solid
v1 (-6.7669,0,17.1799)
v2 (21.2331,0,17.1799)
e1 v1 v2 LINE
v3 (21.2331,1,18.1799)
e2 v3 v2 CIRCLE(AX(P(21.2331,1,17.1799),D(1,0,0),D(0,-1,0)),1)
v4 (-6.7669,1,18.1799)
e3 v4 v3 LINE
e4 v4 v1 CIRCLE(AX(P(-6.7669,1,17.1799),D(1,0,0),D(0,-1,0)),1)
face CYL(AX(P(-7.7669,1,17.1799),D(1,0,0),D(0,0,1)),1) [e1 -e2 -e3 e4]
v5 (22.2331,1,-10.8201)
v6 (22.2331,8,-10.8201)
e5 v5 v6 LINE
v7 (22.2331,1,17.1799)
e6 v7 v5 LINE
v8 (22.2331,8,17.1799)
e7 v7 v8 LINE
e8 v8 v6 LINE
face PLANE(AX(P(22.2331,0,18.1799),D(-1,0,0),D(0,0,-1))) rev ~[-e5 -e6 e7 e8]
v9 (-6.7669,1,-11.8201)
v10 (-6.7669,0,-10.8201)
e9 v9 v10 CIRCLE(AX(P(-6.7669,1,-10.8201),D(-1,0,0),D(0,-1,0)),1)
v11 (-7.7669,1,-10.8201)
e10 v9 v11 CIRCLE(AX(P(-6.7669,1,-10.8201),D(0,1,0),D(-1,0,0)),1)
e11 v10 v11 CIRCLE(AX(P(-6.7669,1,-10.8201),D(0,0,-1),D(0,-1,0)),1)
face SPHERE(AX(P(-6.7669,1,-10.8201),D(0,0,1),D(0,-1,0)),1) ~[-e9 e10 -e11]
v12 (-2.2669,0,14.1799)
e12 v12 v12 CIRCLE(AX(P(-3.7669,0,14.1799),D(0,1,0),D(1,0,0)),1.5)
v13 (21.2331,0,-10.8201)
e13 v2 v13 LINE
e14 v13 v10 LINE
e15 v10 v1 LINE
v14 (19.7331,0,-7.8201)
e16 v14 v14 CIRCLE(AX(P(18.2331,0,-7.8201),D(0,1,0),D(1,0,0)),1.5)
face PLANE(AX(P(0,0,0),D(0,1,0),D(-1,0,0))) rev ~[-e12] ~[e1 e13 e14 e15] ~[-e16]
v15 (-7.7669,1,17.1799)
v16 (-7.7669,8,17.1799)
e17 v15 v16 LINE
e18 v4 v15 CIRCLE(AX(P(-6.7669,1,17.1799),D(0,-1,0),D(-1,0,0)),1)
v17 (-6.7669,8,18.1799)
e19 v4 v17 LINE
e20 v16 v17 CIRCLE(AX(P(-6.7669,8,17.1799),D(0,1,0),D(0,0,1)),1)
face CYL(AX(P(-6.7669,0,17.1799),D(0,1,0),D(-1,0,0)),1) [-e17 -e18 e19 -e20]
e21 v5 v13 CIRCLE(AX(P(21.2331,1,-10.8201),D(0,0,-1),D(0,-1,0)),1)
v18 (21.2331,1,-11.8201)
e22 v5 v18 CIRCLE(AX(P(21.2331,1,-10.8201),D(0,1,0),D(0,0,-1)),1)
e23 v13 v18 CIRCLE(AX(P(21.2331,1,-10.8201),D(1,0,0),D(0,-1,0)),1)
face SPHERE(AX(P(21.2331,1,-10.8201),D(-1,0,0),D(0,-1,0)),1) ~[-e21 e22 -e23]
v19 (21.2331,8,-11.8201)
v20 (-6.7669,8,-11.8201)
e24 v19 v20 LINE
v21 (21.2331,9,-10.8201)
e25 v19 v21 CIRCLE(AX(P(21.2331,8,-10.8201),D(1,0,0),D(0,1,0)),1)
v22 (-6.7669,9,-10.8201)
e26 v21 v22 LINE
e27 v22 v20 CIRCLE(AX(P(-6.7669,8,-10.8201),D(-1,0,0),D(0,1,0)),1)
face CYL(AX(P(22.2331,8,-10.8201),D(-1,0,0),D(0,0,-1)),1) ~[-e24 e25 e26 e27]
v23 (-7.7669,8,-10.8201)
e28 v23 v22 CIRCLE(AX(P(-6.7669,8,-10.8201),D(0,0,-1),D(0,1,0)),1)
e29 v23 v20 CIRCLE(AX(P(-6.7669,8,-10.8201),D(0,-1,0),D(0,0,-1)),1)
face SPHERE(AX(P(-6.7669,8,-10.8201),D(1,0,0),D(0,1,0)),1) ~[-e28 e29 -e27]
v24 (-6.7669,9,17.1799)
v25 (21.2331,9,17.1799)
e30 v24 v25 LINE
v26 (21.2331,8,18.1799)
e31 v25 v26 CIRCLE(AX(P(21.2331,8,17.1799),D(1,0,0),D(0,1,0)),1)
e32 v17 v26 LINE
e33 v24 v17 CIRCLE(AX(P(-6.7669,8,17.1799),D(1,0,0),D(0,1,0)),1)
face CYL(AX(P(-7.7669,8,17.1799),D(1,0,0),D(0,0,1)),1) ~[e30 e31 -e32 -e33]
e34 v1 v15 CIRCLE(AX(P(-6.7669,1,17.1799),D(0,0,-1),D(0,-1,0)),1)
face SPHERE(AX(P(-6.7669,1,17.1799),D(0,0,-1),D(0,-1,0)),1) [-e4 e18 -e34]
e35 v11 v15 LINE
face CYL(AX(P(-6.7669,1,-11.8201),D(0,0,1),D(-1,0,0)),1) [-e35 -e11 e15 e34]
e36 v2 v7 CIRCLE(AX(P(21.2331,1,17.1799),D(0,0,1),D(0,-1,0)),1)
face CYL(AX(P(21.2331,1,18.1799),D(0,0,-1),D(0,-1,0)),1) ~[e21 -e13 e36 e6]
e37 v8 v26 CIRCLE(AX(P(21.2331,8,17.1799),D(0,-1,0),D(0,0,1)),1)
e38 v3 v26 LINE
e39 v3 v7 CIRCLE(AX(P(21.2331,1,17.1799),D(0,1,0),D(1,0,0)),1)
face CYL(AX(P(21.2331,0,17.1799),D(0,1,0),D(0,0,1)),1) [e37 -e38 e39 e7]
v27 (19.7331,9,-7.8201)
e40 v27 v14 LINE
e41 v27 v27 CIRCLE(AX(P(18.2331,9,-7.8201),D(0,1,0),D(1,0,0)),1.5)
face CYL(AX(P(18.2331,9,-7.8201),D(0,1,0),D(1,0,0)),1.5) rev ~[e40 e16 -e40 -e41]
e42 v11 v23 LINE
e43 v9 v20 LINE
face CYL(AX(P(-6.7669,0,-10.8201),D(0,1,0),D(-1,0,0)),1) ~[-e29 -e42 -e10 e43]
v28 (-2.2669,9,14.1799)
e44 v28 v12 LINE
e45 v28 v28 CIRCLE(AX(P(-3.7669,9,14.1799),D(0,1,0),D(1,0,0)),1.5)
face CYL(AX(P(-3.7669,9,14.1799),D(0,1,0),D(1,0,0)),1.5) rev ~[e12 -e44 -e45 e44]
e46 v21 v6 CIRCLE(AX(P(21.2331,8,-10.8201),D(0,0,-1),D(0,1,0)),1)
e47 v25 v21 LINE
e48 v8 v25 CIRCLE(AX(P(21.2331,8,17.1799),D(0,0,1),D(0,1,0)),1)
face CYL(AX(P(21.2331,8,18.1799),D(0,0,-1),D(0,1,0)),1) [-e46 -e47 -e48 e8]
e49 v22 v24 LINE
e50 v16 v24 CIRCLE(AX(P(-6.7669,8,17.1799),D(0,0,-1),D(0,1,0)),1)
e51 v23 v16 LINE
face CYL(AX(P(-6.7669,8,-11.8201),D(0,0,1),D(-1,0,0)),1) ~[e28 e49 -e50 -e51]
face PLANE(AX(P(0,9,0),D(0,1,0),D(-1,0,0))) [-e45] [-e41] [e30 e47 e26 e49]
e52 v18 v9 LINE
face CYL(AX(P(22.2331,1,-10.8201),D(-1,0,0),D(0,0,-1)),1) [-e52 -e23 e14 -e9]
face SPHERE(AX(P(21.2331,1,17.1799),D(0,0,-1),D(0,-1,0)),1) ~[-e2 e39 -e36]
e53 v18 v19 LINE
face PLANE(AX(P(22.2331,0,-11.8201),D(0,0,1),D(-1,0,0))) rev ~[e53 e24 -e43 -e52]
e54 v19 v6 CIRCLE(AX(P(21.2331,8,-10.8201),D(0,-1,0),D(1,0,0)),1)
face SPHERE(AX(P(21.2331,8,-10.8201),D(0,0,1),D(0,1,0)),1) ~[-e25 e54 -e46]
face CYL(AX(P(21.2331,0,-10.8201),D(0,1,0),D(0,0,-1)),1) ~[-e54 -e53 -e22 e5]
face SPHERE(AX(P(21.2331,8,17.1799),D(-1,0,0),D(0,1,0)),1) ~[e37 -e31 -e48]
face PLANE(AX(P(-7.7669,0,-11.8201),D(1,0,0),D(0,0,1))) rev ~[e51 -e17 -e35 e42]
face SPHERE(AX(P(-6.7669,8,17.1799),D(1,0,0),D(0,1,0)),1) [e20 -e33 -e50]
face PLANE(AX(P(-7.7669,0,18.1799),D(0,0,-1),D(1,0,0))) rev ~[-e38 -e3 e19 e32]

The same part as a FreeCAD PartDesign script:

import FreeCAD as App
import Part
import Sketcher


def edges_at(feature, points):
    """Names of the edges that pass closest to the given points."""
    edges = feature.Shape.Edges
    near = lambda p: min(range(len(edges)), key=lambda i: edges[i].distToShape(Part.Vertex(*p))[0])
    return sorted({f"Edge{near(p) + 1}" for p in points})


def add_polygon(sketch, points):
    """Adds a closed chain of lines whose ends are joined by coincident constraints."""
    first, n = sketch.GeometryCount, len(points)
    for a, b in zip(points, points[1:] + points[:1]):
        sketch.addGeometry(Part.LineSegment(App.Vector(*a, 0), App.Vector(*b, 0)), False)
    for i in range(n):
        sketch.addConstraint(Sketcher.Constraint("Coincident", first + i, 2, first + (i + 1) % n, 1))

doc = App.newDocument("Part")
params = doc.addObject("Spreadsheet::Sheet", "Params")
for row, (alias, value) in enumerate([
    ("sketch1_width", "30 mm"),
    ("pad1_length", "9 mm"),
    ("sketch2_diameter", "3 mm"),
    ("pocket1_length", "10 mm"),
    ("fillet_radius", "1 mm"),
], start=1):
    params.set(f"A{row}", alias)
    params.set(f"B{row}", "=" + value)
    params.setAlias(f"B{row}", alias)

body = doc.addObject("PartDesign::Body", "Body")

# Sketch on XZ plane
sketch1 = doc.addObject("Sketcher::SketchObject", "Sketch")
body.addObject(sketch1)
sketch1.AttachmentSupport = (doc.XZ_Plane, [""])
sketch1.MapMode = "FlatFace"
add_polygon(sketch1, [(-8, -12), (-8, 18), (22, 18), (22, -12)])  # lines 0-3
sketch1.addConstraint([
    Sketcher.Constraint("Vertical", 0),
    Sketcher.Constraint("Horizontal", 1),
    Sketcher.Constraint("Vertical", 2),
    Sketcher.Constraint("Horizontal", 3),
    Sketcher.Constraint("Equal", 3, 0),
    Sketcher.Constraint("DistanceX", 1, 1, 1, 2, 30.0),
    Sketcher.Constraint("DistanceY", -1, 1, 0, 2, 18.18),
    Sketcher.Constraint("DistanceX", 0, 2, -1, 1, 7.767),
])
sketch1.setExpression("Constraints[9]", "Params.sketch1_width")
pad1 = doc.addObject("PartDesign::Pad", "Pad")
body.addObject(pad1)
pad1.Profile = sketch1
pad1.setExpression("Length", "Params.pad1_length")
pad1.Reversed = True

# Sketch on XZ plane
sketch2 = doc.addObject("Sketcher::SketchObject", "Sketch001")
body.addObject(sketch2)
sketch2.AttachmentSupport = (doc.XZ_Plane, [""])
sketch2.MapMode = "FlatFace"
sketch2.AttachmentOffset = App.Placement(App.Vector(0, 0, -9), App.Rotation())
sketch2.addGeometry([
    Part.Circle(App.Vector(-3.8, 14.2, 0), App.Vector(0, 0, 1), 1.5),
    Part.Circle(App.Vector(18.2, -7.8, 0), App.Vector(0, 0, 1), 1.5),
], False)
sketch2.addConstraint([
    Sketcher.Constraint("Equal", 0, 1),
    Sketcher.Constraint("Diameter", 0, 3.0),
    Sketcher.Constraint("DistanceX", 0, 3, 1, 3, 22.0),
    Sketcher.Constraint("DistanceY", 1, 3, 0, 3, 22.0),
    Sketcher.Constraint("DistanceY", -1, 1, 0, 3, 14.18),
    Sketcher.Constraint("DistanceX", 0, 3, -1, 1, 3.767),
])
sketch2.setExpression("Constraints[1]", "Params.sketch2_diameter")
pocket1 = doc.addObject("PartDesign::Pocket", "Pocket")
body.addObject(pocket1)
pocket1.Profile = sketch2
pocket1.setExpression("Length", "Params.pocket1_length")
pocket1.Reversed = True
doc.recompute()

fillet = doc.addObject("PartDesign::Fillet", "Fillet")
body.addObject(fillet)
fillet.Base = (pocket1, edges_at(pocket1, [
    (7.233, 9, 18.18),
    (22.233, 9, 3.18),
    (7.233, 9, -11.82),
    (-7.767, 9, 3.18),
    (-7.767, 0, 3.18),
    (7.233, 0, -11.82),
    (22.233, 0, 3.18),
    (7.233, 0, 18.18),
    (22.233, 4.5, 18.18),
    (22.233, 4.5, -11.82),
    (-7.767, 4.5, -11.82),
    (-7.767, 4.5, 18.18),
]))
fillet.setExpression("Radius", "Params.fillet_radius")

doc.recompute()
